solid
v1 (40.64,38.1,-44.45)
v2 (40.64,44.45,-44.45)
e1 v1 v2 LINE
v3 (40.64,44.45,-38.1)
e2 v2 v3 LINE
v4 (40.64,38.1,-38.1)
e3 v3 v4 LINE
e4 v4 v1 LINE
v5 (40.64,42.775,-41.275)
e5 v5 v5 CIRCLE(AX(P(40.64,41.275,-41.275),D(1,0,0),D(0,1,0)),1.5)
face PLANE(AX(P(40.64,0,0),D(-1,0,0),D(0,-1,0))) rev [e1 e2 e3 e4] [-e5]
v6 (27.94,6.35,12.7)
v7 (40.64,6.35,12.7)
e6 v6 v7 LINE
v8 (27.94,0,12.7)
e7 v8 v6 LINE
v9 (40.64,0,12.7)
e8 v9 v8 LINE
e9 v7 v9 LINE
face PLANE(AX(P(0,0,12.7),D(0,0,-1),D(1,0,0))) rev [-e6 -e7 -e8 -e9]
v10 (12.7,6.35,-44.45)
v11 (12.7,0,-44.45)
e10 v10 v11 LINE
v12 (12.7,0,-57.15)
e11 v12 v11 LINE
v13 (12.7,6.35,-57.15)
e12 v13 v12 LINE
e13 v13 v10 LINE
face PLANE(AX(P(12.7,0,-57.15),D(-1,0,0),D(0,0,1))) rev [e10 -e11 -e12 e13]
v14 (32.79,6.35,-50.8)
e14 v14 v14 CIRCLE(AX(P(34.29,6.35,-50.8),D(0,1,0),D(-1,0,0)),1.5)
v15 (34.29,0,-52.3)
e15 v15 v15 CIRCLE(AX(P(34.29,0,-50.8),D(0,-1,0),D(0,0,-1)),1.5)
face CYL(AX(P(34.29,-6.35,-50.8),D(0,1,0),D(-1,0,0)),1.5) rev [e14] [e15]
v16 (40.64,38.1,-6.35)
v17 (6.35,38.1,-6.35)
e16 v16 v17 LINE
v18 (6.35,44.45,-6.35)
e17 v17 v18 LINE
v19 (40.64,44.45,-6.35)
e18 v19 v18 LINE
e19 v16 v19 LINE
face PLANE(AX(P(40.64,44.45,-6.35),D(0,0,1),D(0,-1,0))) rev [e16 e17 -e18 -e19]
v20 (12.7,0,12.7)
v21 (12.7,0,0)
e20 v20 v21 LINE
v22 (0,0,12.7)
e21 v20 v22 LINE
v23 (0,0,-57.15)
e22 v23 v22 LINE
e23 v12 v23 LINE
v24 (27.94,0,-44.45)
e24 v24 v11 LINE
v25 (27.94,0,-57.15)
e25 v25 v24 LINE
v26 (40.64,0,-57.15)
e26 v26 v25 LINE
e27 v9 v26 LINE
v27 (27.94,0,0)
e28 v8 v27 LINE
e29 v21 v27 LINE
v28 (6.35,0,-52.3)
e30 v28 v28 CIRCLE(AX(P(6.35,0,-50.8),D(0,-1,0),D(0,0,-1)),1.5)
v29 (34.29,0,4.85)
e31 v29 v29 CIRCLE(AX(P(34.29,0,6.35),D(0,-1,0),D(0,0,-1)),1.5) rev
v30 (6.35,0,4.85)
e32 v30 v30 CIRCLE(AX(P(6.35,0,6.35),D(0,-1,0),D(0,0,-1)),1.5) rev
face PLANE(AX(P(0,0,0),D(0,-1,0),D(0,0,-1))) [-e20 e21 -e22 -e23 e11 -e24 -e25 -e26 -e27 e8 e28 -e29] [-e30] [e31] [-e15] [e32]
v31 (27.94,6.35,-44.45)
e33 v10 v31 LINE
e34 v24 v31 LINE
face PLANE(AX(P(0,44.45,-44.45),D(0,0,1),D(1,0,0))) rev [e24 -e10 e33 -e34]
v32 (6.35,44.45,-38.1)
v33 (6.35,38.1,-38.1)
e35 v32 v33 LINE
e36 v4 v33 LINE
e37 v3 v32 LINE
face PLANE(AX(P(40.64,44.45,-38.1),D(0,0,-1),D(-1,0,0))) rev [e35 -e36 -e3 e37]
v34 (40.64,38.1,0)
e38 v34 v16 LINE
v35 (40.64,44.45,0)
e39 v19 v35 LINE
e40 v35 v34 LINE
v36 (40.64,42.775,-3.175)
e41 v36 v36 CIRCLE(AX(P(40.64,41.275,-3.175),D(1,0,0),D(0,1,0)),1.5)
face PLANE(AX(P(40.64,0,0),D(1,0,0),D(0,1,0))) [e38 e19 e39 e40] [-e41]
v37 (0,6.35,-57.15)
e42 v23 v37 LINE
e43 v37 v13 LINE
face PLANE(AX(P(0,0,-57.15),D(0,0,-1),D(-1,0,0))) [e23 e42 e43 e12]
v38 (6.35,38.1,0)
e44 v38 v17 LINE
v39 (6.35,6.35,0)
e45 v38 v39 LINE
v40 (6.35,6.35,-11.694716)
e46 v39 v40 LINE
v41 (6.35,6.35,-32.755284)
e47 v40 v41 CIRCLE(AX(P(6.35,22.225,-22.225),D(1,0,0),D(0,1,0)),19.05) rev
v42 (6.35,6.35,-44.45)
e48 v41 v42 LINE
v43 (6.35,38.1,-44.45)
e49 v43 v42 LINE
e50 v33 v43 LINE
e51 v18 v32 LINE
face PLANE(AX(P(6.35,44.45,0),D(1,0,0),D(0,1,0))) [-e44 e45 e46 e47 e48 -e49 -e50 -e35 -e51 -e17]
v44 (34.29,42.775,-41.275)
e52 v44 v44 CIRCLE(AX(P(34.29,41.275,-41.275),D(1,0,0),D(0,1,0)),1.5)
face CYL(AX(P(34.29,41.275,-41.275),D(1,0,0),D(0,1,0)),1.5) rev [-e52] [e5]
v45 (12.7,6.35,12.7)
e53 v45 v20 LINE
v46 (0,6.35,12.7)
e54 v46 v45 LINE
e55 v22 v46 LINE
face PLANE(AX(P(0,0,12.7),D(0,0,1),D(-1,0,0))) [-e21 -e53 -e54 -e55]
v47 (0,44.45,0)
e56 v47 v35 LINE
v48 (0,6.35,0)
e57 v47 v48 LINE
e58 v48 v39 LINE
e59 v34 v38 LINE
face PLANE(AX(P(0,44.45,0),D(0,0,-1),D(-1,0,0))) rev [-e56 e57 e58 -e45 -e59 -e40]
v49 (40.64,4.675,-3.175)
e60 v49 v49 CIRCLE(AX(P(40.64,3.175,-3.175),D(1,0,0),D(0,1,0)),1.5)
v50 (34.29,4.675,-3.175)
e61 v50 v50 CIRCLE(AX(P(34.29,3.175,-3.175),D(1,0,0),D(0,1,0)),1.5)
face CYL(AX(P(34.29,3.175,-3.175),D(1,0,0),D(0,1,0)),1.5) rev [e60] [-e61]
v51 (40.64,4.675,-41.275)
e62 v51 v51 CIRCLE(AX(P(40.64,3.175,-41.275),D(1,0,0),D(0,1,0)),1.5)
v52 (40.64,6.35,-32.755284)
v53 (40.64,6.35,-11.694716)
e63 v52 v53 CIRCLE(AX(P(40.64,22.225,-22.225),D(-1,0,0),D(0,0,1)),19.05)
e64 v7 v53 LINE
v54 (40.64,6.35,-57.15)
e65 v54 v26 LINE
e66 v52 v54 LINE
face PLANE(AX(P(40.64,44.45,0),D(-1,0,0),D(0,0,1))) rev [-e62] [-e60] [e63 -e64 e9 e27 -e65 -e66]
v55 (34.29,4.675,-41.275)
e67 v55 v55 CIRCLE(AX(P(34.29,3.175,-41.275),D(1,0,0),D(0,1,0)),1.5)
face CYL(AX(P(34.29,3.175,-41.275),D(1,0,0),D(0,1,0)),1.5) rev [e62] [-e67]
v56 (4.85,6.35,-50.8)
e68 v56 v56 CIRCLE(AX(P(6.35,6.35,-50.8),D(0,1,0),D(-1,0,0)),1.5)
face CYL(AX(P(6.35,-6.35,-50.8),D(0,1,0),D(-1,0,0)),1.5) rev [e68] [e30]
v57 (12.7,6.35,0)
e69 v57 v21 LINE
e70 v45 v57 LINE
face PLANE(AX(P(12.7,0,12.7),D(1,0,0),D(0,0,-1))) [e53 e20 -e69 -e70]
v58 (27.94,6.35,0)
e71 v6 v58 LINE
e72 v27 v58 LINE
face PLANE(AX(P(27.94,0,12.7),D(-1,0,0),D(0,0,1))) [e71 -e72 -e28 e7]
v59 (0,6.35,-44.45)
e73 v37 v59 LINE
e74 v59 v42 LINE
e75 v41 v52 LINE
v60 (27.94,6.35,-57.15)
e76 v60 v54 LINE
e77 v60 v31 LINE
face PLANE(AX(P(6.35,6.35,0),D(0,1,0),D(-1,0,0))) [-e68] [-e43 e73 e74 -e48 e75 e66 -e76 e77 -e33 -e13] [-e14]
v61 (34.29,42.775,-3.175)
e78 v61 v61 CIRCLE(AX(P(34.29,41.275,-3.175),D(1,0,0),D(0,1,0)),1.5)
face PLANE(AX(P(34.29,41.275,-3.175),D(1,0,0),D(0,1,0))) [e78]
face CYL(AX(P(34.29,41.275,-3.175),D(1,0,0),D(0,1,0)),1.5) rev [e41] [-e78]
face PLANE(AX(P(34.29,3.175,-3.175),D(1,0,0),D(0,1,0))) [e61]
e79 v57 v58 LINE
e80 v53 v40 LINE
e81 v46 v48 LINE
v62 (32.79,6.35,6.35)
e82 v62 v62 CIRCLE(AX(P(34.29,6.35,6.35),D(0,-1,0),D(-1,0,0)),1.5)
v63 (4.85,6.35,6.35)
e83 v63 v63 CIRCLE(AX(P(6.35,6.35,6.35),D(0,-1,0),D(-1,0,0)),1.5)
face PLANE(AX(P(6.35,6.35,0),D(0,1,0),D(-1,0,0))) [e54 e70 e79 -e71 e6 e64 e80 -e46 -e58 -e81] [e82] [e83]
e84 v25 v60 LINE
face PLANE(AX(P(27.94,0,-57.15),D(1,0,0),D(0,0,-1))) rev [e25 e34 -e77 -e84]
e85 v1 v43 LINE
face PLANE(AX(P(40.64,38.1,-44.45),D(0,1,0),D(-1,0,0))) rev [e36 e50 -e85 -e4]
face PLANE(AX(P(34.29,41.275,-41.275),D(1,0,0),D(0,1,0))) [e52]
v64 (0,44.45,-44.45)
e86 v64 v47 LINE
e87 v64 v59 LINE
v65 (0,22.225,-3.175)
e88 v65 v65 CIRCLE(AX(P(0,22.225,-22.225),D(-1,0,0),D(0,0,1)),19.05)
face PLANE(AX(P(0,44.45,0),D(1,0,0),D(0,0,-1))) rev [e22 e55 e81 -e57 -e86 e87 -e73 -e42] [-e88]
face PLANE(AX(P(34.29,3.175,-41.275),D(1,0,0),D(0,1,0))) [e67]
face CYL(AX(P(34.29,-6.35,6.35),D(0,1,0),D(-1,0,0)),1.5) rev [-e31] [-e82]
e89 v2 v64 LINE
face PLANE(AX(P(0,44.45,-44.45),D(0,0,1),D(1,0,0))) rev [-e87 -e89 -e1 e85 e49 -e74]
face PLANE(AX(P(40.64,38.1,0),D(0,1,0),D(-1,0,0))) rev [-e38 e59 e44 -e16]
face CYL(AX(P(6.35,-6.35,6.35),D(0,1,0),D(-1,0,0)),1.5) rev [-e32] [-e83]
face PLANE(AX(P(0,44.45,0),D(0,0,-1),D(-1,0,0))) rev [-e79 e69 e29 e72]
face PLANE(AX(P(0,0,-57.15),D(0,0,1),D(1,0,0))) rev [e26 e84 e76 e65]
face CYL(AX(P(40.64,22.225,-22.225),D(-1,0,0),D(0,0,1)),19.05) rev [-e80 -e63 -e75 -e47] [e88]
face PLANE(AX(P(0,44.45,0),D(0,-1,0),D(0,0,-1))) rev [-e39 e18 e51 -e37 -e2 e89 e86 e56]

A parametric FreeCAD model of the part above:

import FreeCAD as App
import Part
import Sketcher
Q = App.Units.Quantity


def add_polygon(sketch, points):
    """Adds a closed chain of lines whose ends are joined by coincident constraints."""
    first, n = sketch.GeometryCount, len(points)
    for a, b in zip(points, points[1:] + points[:1]):
        sketch.addGeometry(Part.LineSegment(App.Vector(*a, 0), App.Vector(*b, 0)), False)
    for i in range(n):
        sketch.addConstraint(Sketcher.Constraint("Coincident", first + i, 2, first + (i + 1) % n, 1))

doc = App.newDocument("Part")
body = doc.addObject("PartDesign::Body", "Body")

# Sketch on XZ plane
sketch1 = body.newObject("Sketcher::SketchObject", "Sketch")
sketch1.AttachmentSupport = (doc.getObject("XZ_Plane"), [""])
sketch1.MapMode = "FlatFace"
add_polygon(sketch1, [(0, -44), (0, 0), (41, 0), (41, -44)])  # lines 0-3
sketch1.addConstraint([
    Sketcher.Constraint("Vertical", 0),
    Sketcher.Constraint("Horizontal", 1),
    Sketcher.Constraint("Vertical", 2),
    Sketcher.Constraint("Horizontal", 3),
    Sketcher.Constraint("Coincident", 0, 2, -1, 1),
    Sketcher.Constraint("DistanceX", 1, 1, 1, 2, Q("1.6 in")),
    Sketcher.Constraint("DistanceY", 0, 1, 0, 2, Q("1.75 in")),
])
pad1 = body.newObject("PartDesign::Pad", "Pad")
pad1.Profile = sketch1
pad1.Length = Q("1.75 in")
pad1.Reversed = True

# Sketch on YZ plane
sketch2 = body.newObject("Sketcher::SketchObject", "Sketch001")
sketch2.AttachmentSupport = (doc.getObject("YZ_Plane"), [""])
sketch2.MapMode = "FlatFace"
sketch2.addGeometry(Part.Circle(App.Vector(22, -22, 0), App.Vector(0, 0, 1), 19), False)
sketch2.addConstraint([
    Sketcher.Constraint("Diameter", 0, Q("1.5 in")),
    Sketcher.Constraint("DistanceX", -1, 1, 0, 3, Q("0.875 in")),
    Sketcher.Constraint("DistanceY", 0, 3, -1, 1, Q("0.875 in")),
])
pocket1 = body.newObject("PartDesign::Pocket", "Pocket")
pocket1.Profile = sketch2
pocket1.Type = "ThroughAll"
pocket1.Reversed = True

# Sketch on XY plane
sketch3 = body.newObject("Sketcher::SketchObject", "Sketch002")
sketch3.AttachmentSupport = (doc.getObject("XY_Plane"), [""])
sketch3.MapMode = "FlatFace"
sketch3.AttachmentOffset = App.Placement(App.Vector(0, 0, -1.75 * 25.4), App.Rotation())
add_polygon(sketch3, [(41, 44), (41, 6), (6, 6), (6, 44)])  # lines 0-3
sketch3.addConstraint([
    Sketcher.Constraint("Vertical", 0),
    Sketcher.Constraint("Horizontal", 1),
    Sketcher.Constraint("Vertical", 2),
    Sketcher.Constraint("Horizontal", 3),
    Sketcher.Constraint("DistanceY", 0, 2, 0, 1, Q("1.5 in")),
    Sketcher.Constraint("DistanceX", 1, 2, 1, 1, Q("1.35 in")),
    Sketcher.Constraint("DistanceX", -1, 1, 0, 2, Q("1.6 in")),
    Sketcher.Constraint("DistanceY", -1, 1, 0, 2, Q("0.25 in")),
])
pocket2 = body.newObject("PartDesign::Pocket", "Pocket001")
pocket2.Profile = sketch3
pocket2.Type = "ThroughAll"
pocket2.Reversed = True

# Sketch on YZ plane
sketch4 = body.newObject("Sketcher::SketchObject", "Sketch003")
sketch4.AttachmentSupport = (doc.getObject("YZ_Plane"), [""])
sketch4.MapMode = "FlatFace"
sketch4.AttachmentOffset = App.Placement(App.Vector(0, 0, 0.25 * 25.4), App.Rotation())
add_polygon(sketch4, [(44, 0), (38, 0), (38, -6), (44, -6)])  # lines 0-3
add_polygon(sketch4, [(44, -38), (38, -38), (38, -44), (44, -44)])  # lines 4-7
sketch4.addConstraint([
    Sketcher.Constraint("Horizontal", 0),
    Sketcher.Constraint("Vertical", 1),
    Sketcher.Constraint("Horizontal", 2),
    Sketcher.Constraint("Vertical", 3),
    Sketcher.Constraint("Horizontal", 4),
    Sketcher.Constraint("Vertical", 5),
    Sketcher.Constraint("Horizontal", 6),
    Sketcher.Constraint("Vertical", 7),
    Sketcher.Constraint("PointOnObject", 0, 2, -1),
    Sketcher.Constraint("Vertical", 1, 2, 4, 2),
    Sketcher.Constraint("Vertical", 3, 2, 6, 2),
    Sketcher.Constraint("Equal", 6, 1),
    Sketcher.Constraint("Equal", 3, 5),
    Sketcher.Constraint("DistanceX", 0, 2, 0, 1, Q("0.25 in")),
    Sketcher.Constraint("DistanceX", -1, 1, 0, 2, Q("1.5 in")),
    Sketcher.Constraint("DistanceY", 4, 2, -1, 1, Q("1.5 in")),
])
pad2 = body.newObject("PartDesign::Pad", "Pad001")
pad2.Profile = sketch4
pad2.Length = Q("1.35 in")

# Sketch on YZ plane
sketch5 = body.newObject("Sketcher::SketchObject", "Sketch004")
sketch5.AttachmentSupport = (doc.getObject("YZ_Plane"), [""])
sketch5.MapMode = "FlatFace"
sketch5.AttachmentOffset = App.Placement(App.Vector(0, 0, 1.6 * 25.4), App.Rotation())
sketch5.addGeometry([
    Part.Circle(App.Vector(41.3, -3.2, 0), App.Vector(0, 0, 1), 1.5),
    Part.Circle(App.Vector(41.3, -41.3, 0), App.Vector(0, 0, 1), 1.5),
    Part.Circle(App.Vector(3.2, -41.3, 0), App.Vector(0, 0, 1), 1.5),
    Part.Circle(App.Vector(3.2, -3.2, 0), App.Vector(0, 0, 1), 1.5),
], False)
sketch5.addConstraint([
    Sketcher.Constraint("Equal", 0, 1),
    Sketcher.Constraint("Equal", 1, 2),
    Sketcher.Constraint("Equal", 2, 3),
    Sketcher.Constraint("Horizontal", 1, 3, 2, 3),
    Sketcher.Constraint("Horizontal", 0, 3, 3, 3),
    Sketcher.Constraint("Vertical", 0, 3, 1, 3),
    Sketcher.Constraint("Vertical", 2, 3, 3, 3),
    Sketcher.Constraint("DistanceY", 1, 3, 0, 3, Q("1.5 in")),
    Sketcher.Constraint("DistanceX", 2, 3, 1, 3, Q("1.5 in")),
    Sketcher.Constraint("Diameter", 0, 3.0),
    Sketcher.Constraint("DistanceX", -1, 1, 0, 3, Q("1.625 in")),
    Sketcher.Constraint("DistanceY", 0, 3, -1, 1, Q("0.125 in")),
])
pocket3 = body.newObject("PartDesign::Pocket", "Pocket002")
pocket3.Profile = sketch5
pocket3.Length = Q("0.25 in")

# Sketch on XY plane
sketch6 = body.newObject("Sketcher::SketchObject", "Sketch005")
sketch6.AttachmentSupport = (doc.getObject("XY_Plane"), [""])
sketch6.MapMode = "FlatFace"
sketch6.AttachmentOffset = App.Placement(App.Vector(0, 0, -1.75 * 25.4), App.Rotation())
add_polygon(sketch6, [(41, 6), (41, 0), (28, 0), (28, 6)])  # lines 0-3
add_polygon(sketch6, [(13, 6), (13, 0), (0, 0), (0, 6)])  # lines 4-7
sketch6.addConstraint([
    Sketcher.Constraint("Vertical", 0),
    Sketcher.Constraint("Horizontal", 1),
    Sketcher.Constraint("Vertical", 2),
    Sketcher.Constraint("Horizontal", 3),
    Sketcher.Constraint("Vertical", 4),
    Sketcher.Constraint("Horizontal", 5),
    Sketcher.Constraint("Vertical", 6),
    Sketcher.Constraint("Horizontal", 7),
    Sketcher.Constraint("Coincident", 5, 2, -1, 1),
    Sketcher.Constraint("PointOnObject", 0, 2, -1),
    Sketcher.Constraint("Horizontal", 3, 2, 6, 2),
    Sketcher.Constraint("Equal", 3, 5),
    Sketcher.Constraint("DistanceX", 1, 2, 1, 1, Q("0.5 in")),
    Sketcher.Constraint("DistanceY", 0, 2, 0, 1, Q("0.25 in")),
    Sketcher.Constraint("DistanceX", -1, 1, 0, 2, Q("1.6 in")),
])
pad3 = body.newObject("PartDesign::Pad", "Pad002")
pad3.Profile = sketch6
pad3.Length = Q("0.5 in")
pad3.Reversed = True

# Sketch on XZ plane
sketch7 = body.newObject("Sketcher::SketchObject", "Sketch006")
sketch7.AttachmentSupport = (doc.getObject("XZ_Plane"), [""])
sketch7.MapMode = "FlatFace"
sketch7.AttachmentOffset = App.Placement(App.Vector(0, 0, -0.25 * 25.4), App.Rotation())
sketch7.addGeometry([
    Part.Circle(App.Vector(6.3, -50.8, 0), App.Vector(0, 0, 1), 1.5),
    Part.Circle(App.Vector(34.3, -50.8, 0), App.Vector(0, 0, 1), 1.5),
], False)
sketch7.addConstraint([
    Sketcher.Constraint("Equal", 0, 1),
    Sketcher.Constraint("Horizontal", 0, 3, 1, 3),
    Sketcher.Constraint("DistanceY", 0, 3, -1, 1, Q("2 in")),
    Sketcher.Constraint("DistanceX", 0, 3, 1, 3, Q("1.1 in")),
    Sketcher.Constraint("Diameter", 0, 3.0),
    Sketcher.Constraint("DistanceX", -1, 1, 0, 3, Q("0.25 in")),
])
pocket4 = body.newObject("PartDesign::Pocket", "Pocket003")
pocket4.Profile = sketch7
pocket4.Length = Q("0.5 in")
pocket4.Reversed = True
doc.recompute()

datumplane = body.newObject("PartDesign::Plane", "DatumPlane")
datumplane.AttachmentSupport = (doc.getObject("XY_Plane"), [""])
datumplane.MapMode = "FlatFace"
datumplane.AttachmentOffset = App.Placement(App.Vector(0, 0, -0.875 * 25.4), App.Rotation())
mirrored = body.newObject("PartDesign::Mirrored", "Mirrored")
mirrored.Originals = [pad3, pocket4]
mirrored.MirrorPlane = (datumplane, [""])
body.Tip = mirrored

doc.recompute()
